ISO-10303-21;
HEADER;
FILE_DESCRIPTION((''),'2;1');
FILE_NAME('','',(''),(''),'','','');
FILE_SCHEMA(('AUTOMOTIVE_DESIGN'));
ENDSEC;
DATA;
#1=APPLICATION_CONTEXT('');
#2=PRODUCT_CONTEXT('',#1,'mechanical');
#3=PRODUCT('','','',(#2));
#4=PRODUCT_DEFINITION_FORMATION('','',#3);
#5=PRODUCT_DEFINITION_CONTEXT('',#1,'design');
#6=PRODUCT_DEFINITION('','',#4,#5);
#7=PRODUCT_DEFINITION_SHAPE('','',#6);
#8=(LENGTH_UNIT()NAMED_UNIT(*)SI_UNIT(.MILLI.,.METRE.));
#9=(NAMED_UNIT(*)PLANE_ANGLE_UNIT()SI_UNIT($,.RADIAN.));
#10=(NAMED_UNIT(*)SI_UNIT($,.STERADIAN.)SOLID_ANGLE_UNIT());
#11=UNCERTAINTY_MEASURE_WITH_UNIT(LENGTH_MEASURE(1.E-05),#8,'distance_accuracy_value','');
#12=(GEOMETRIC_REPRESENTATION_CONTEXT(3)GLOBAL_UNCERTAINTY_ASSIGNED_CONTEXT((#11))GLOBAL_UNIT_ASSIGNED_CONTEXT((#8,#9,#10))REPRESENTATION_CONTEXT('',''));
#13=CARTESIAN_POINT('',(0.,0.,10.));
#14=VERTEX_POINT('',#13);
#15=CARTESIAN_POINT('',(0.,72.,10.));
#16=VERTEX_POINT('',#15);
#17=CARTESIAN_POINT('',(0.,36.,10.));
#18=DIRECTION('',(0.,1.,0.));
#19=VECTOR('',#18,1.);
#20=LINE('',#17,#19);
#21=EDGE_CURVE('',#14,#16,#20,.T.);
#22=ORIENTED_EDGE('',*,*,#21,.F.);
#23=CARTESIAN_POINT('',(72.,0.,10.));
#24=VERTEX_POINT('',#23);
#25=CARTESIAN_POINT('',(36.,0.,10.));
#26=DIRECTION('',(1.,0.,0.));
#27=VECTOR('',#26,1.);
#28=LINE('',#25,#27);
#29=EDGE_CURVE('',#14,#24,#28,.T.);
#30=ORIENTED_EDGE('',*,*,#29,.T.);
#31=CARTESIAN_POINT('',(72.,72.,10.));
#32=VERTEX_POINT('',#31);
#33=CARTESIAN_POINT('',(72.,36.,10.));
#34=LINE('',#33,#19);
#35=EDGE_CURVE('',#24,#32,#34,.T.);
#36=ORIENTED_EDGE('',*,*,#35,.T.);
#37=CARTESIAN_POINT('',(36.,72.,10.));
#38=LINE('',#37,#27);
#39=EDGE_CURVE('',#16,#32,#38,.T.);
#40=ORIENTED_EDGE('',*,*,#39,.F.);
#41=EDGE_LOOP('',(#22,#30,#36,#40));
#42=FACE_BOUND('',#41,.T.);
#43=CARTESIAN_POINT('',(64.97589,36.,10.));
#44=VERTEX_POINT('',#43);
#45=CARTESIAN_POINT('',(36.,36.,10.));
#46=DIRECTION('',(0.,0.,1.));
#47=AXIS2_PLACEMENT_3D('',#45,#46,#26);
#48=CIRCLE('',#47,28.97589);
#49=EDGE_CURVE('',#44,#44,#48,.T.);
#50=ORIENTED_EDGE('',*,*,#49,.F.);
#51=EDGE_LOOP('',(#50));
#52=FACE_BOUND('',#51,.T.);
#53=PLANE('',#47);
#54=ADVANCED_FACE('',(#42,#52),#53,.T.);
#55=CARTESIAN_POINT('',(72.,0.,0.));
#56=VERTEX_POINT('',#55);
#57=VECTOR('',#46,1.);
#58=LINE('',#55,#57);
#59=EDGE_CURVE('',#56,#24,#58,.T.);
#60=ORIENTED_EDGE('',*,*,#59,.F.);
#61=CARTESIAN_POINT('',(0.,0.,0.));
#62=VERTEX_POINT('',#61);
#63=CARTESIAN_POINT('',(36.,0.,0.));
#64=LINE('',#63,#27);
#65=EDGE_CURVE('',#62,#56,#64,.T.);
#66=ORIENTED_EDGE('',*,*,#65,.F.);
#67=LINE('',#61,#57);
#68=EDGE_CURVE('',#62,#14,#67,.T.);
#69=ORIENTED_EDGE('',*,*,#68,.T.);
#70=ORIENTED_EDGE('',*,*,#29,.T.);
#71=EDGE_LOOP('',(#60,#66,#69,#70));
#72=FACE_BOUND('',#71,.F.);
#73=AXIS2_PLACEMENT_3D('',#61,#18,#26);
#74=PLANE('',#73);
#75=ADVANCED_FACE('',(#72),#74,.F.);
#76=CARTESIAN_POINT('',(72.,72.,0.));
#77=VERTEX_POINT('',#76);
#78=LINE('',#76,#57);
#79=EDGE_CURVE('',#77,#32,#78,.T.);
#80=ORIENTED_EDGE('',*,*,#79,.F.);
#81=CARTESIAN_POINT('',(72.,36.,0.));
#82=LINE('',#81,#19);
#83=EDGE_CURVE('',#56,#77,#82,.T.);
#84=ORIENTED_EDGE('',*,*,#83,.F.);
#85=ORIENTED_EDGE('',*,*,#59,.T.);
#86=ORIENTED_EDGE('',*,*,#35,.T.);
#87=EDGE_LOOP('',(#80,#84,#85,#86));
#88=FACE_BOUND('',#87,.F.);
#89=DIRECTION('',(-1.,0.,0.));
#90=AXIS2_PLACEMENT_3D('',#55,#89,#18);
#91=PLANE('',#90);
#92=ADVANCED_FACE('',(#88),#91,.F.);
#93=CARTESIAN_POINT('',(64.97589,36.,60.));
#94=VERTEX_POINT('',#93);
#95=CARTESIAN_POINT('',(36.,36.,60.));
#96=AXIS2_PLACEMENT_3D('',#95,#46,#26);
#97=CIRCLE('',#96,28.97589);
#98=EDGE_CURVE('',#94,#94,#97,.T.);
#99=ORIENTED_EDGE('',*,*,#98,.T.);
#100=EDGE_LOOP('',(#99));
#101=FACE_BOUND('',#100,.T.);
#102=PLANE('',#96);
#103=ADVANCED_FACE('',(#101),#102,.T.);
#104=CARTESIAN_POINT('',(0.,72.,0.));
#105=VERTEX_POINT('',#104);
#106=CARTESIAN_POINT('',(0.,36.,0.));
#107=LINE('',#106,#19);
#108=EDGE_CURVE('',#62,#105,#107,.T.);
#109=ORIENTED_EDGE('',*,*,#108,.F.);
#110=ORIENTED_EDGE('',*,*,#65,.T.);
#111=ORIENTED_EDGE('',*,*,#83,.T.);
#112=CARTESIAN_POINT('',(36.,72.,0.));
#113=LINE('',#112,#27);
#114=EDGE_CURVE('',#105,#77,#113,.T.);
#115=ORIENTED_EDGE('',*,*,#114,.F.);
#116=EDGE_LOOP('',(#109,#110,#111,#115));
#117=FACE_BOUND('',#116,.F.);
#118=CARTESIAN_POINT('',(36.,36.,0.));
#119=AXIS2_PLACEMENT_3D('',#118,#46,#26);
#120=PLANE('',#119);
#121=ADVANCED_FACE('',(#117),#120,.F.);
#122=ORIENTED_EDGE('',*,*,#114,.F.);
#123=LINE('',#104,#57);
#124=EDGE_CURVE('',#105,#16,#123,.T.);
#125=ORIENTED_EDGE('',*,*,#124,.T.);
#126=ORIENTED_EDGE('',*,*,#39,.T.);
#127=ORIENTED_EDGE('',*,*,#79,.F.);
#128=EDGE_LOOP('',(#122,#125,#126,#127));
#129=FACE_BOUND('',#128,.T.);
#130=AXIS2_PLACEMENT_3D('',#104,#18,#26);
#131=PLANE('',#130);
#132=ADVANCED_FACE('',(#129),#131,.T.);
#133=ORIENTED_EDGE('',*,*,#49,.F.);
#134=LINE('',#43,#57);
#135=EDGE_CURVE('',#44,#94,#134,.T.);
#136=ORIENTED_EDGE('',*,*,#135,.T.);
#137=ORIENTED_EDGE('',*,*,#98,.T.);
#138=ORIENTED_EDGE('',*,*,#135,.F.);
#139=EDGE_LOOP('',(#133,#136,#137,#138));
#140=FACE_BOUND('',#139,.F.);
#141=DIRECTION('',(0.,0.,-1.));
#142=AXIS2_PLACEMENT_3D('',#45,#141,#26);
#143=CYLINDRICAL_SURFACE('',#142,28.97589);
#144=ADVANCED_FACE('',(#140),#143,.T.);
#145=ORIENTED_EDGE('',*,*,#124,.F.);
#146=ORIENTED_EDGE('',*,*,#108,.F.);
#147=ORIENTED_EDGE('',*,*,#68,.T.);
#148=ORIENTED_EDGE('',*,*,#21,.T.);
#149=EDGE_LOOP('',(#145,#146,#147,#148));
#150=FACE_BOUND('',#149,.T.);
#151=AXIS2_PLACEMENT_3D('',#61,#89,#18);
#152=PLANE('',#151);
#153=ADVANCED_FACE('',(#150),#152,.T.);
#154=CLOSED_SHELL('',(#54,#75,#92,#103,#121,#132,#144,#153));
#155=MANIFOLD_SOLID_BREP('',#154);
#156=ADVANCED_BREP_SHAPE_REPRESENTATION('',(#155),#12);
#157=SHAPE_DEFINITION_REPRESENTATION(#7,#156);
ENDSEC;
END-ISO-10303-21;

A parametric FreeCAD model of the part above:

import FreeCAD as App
import Part
import Sketcher


def add_polygon(sketch, points):
    """Adds a closed chain of lines whose ends are joined by coincident constraints."""
    first, n = sketch.GeometryCount, len(points)
    for a, b in zip(points, points[1:] + points[:1]):
        sketch.addGeometry(Part.LineSegment(App.Vector(*a, 0), App.Vector(*b, 0)), False)
    for i in range(n):
        sketch.addConstraint(Sketcher.Constraint("Coincident", first + i, 2, first + (i + 1) % n, 1))

doc = App.newDocument("Part")
body = doc.addObject("PartDesign::Body", "Body")

# Sketch on XY plane
sketch1 = body.newObject("Sketcher::SketchObject", "Sketch")
sketch1.AttachmentSupport = (doc.getObject("XY_Plane"), [""])
sketch1.MapMode = "FlatFace"
add_polygon(sketch1, [(0, 72), (0, 0), (72, 0), (72, 72)])  # lines 0-3
sketch1.addConstraint(Sketcher.Constraint("Vertical", 0))
sketch1.addConstraint(Sketcher.Constraint("Horizontal", 1))
sketch1.addConstraint(Sketcher.Constraint("Vertical", 2))
sketch1.addConstraint(Sketcher.Constraint("Horizontal", 3))
sketch1.addConstraint(Sketcher.Constraint("Coincident", 0, 2, -1, 1))
sketch1.addConstraint(Sketcher.Constraint("Equal", 3, 0))
sketch1.addConstraint(Sketcher.Constraint("DistanceX", 1, 1, 1, 2, 72.0))
pad1 = body.newObject("PartDesign::Pad", "Pad")
pad1.Profile = sketch1
pad1.Length = 10

# Sketch on XY plane
sketch2 = body.newObject("Sketcher::SketchObject", "Sketch001")
sketch2.AttachmentSupport = (doc.getObject("XY_Plane"), [""])
sketch2.MapMode = "FlatFace"
sketch2.AttachmentOffset = App.Placement(App.Vector(0, 0, 10), App.Rotation())
sketch2.addGeometry(Part.Circle(App.Vector(36, 36, 0), App.Vector(0, 0, 1), 28.97589), False)
sketch2.addConstraint(Sketcher.Constraint("DistanceX", -1, 1, 0, 3, 36.0))
sketch2.addConstraint(Sketcher.Constraint("DistanceY", -1, 1, 0, 3, 36.0))
sketch2.addConstraint(Sketcher.Constraint("Diameter", 0, 57.95178))
pad2 = body.newObject("PartDesign::Pad", "Pad001")
pad2.Profile = sketch2
pad2.Length = 50

doc.recompute()
